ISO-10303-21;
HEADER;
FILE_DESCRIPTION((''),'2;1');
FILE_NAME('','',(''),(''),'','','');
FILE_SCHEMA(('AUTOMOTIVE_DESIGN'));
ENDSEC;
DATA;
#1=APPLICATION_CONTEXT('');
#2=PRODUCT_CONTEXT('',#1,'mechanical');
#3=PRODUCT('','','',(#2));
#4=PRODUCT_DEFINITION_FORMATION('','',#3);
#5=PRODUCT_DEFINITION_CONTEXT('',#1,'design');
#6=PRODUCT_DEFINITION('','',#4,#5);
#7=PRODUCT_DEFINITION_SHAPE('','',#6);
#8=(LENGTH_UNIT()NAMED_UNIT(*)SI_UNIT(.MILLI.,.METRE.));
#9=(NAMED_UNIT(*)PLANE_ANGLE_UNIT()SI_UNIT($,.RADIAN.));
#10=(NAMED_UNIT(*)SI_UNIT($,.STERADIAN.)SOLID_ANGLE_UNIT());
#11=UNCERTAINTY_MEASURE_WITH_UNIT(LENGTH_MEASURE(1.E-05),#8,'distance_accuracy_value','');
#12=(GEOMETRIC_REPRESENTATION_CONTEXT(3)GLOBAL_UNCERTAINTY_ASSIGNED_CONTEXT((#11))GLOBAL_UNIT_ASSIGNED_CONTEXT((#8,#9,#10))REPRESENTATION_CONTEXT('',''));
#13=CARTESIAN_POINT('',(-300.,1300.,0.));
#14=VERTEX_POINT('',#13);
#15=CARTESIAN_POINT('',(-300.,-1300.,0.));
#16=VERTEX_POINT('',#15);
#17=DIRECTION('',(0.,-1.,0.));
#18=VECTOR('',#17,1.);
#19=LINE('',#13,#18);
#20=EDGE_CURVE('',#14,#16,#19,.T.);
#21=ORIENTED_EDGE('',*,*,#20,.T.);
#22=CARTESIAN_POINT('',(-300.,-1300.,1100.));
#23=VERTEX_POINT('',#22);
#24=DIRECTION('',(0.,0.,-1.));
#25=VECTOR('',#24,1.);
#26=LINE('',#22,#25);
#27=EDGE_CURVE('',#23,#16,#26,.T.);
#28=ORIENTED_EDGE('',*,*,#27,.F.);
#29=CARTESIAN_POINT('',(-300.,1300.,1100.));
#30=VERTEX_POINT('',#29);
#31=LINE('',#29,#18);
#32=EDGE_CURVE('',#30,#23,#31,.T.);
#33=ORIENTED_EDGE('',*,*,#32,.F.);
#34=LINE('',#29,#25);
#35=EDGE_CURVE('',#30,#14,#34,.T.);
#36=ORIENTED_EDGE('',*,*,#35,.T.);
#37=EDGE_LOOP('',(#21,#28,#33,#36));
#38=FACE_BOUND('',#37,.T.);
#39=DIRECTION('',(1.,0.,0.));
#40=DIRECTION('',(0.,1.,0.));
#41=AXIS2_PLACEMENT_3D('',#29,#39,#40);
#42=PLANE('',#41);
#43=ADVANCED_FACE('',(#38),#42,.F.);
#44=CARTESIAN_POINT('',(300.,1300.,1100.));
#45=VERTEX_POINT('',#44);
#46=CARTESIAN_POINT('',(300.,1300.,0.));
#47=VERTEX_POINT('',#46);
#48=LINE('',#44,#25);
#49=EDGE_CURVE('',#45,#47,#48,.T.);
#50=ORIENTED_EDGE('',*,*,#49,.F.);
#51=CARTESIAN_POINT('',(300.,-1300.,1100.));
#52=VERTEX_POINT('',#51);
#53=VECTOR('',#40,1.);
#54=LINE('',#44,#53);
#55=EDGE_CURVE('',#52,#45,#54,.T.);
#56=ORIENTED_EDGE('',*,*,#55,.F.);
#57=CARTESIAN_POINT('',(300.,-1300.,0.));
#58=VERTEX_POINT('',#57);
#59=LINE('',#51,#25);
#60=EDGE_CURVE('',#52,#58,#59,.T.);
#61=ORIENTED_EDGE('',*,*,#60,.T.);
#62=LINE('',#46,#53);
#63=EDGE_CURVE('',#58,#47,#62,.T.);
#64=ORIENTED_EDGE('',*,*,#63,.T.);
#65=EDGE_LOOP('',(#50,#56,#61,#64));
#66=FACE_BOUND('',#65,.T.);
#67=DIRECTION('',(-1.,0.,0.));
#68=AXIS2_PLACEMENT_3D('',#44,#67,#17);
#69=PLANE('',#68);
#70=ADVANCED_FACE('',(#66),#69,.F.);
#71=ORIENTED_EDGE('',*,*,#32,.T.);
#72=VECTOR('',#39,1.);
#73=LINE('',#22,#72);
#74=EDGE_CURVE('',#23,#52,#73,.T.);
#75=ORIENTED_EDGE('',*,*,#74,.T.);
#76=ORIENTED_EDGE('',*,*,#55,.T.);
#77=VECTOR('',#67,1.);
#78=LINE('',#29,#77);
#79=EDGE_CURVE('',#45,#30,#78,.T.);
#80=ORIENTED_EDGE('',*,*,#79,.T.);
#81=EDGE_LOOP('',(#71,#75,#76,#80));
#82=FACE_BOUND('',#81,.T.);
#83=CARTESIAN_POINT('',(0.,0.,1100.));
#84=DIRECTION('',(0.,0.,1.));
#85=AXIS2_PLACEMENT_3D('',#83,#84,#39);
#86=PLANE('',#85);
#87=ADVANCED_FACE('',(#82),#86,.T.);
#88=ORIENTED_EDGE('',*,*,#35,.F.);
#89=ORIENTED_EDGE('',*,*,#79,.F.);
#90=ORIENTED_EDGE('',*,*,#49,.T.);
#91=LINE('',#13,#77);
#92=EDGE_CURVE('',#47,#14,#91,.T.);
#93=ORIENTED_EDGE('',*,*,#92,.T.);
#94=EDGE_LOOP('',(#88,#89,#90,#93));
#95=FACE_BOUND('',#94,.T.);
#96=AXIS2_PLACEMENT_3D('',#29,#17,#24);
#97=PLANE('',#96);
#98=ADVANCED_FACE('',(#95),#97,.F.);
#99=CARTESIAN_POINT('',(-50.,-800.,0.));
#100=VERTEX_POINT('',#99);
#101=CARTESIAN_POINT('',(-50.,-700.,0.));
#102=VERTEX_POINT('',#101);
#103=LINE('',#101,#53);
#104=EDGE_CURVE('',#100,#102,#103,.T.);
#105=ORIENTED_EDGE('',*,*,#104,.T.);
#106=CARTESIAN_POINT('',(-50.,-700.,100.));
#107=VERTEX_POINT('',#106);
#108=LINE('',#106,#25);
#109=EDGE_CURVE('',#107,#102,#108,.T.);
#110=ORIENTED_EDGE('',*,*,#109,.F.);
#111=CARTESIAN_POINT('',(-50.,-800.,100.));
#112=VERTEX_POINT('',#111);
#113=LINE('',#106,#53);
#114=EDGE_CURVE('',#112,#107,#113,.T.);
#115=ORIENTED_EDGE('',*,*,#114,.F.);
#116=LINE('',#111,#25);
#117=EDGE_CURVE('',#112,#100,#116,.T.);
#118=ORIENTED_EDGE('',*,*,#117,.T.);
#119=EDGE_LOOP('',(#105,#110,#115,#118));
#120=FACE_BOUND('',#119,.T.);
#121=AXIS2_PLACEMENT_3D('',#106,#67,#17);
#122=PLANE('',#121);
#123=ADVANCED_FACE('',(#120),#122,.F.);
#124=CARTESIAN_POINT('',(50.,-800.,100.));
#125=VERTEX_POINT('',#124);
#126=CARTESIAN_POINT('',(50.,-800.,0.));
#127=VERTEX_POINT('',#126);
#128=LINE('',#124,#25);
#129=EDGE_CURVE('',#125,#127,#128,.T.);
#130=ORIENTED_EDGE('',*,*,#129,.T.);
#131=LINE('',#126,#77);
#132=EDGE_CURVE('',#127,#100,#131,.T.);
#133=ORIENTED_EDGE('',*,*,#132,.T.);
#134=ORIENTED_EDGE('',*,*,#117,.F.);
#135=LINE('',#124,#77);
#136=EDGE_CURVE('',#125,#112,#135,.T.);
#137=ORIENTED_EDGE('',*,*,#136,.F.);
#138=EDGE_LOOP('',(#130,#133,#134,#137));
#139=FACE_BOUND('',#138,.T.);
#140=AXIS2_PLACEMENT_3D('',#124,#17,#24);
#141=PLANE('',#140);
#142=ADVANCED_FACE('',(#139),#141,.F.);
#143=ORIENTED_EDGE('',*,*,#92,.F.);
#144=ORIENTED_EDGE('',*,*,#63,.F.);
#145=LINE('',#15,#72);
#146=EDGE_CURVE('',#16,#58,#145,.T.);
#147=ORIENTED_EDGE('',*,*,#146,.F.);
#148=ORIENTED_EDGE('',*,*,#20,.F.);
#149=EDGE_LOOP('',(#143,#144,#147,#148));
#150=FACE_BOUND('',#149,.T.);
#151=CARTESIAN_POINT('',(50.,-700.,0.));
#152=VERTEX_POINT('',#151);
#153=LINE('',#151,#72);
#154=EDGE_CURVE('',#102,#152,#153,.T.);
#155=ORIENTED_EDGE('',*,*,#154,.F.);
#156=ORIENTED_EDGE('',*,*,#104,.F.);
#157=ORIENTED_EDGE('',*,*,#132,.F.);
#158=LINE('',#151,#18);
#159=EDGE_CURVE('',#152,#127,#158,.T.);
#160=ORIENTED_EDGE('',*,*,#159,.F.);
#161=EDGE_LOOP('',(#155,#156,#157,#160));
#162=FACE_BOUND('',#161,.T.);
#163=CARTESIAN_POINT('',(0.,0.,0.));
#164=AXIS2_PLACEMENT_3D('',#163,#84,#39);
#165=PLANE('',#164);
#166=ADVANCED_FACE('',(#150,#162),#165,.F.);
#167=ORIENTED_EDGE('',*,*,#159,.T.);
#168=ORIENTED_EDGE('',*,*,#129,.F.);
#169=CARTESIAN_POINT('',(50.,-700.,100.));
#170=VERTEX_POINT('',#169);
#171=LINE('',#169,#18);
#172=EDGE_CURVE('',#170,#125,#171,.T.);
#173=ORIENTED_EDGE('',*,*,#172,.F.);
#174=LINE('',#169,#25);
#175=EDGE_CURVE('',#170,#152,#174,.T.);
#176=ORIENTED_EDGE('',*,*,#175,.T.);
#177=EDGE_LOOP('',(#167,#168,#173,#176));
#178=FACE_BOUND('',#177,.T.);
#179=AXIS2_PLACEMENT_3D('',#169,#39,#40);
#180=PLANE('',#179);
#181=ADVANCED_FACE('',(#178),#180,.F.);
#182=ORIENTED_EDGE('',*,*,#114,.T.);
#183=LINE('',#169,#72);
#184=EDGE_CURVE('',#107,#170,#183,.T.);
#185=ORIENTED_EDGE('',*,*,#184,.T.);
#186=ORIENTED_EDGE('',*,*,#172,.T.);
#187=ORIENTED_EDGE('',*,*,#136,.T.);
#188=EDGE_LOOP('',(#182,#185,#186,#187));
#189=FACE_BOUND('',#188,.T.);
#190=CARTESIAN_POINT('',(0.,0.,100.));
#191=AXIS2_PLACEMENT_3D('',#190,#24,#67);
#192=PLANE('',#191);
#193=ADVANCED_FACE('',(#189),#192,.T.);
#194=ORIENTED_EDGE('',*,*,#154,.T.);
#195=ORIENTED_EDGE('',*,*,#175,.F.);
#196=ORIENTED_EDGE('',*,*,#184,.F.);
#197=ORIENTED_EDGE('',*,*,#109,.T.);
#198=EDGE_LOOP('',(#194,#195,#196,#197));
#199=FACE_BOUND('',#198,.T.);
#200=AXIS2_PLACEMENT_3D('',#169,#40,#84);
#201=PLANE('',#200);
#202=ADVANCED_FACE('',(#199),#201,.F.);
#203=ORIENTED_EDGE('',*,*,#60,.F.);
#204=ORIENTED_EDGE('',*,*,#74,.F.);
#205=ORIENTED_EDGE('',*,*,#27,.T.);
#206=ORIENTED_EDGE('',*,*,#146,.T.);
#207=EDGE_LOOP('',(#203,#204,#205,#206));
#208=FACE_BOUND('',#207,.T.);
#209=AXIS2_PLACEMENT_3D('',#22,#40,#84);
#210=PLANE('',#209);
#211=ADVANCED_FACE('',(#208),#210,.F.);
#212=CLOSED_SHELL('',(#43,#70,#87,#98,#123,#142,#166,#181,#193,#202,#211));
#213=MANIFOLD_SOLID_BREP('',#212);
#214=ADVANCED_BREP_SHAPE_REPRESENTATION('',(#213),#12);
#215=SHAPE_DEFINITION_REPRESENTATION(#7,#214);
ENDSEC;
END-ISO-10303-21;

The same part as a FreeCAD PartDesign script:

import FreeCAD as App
import Part
import Sketcher
from FreeCAD import Vector


def add_polygon(sketch, points):
    """Adds a closed chain of lines whose ends are joined by coincident constraints."""
    first, n = sketch.GeometryCount, len(points)
    for a, b in zip(points, points[1:] + points[:1]):
        sketch.addGeometry(Part.LineSegment(App.Vector(*a, 0), App.Vector(*b, 0)), False)
    for i in range(n):
        sketch.addConstraint(Sketcher.Constraint("Coincident", first + i, 2, first + (i + 1) % n, 1))

doc = App.newDocument("Part")
body = doc.addObject("PartDesign::Body", "Body")

# Sketch on XY plane
sketch1 = body.newObject("Sketcher::SketchObject", "Sketch")
sketch1.AttachmentSupport = (doc.getObject("XY_Plane"), [""])
sketch1.MapMode = "FlatFace"
add_polygon(sketch1, [(-300, 1300), (-300, -1300), (300, -1300), (300, 1300)])  # lines 0-3
sketch1.addConstraint(Sketcher.Constraint("Vertical", 0))
sketch1.addConstraint(Sketcher.Constraint("Horizontal", 1))
sketch1.addConstraint(Sketcher.Constraint("Vertical", 2))
sketch1.addConstraint(Sketcher.Constraint("Horizontal", 3))
sketch1.addConstraint(Sketcher.Constraint("Symmetric", 0, 2, 2, 2, -1, 1))
sketch1.addConstraint(Sketcher.Constraint("DistanceX", 1, 1, 1, 2, 600.0))
sketch1.addConstraint(Sketcher.Constraint("DistanceY", 0, 2, 0, 1, 2600.0))
pad1 = body.newObject("PartDesign::Pad", "Pad")
pad1.Profile = sketch1
pad1.Length = 1100

# Sketch on XY plane
sketch2 = body.newObject("Sketcher::SketchObject", "Sketch001")
sketch2.AttachmentSupport = (doc.getObject("XY_Plane"), [""])
sketch2.MapMode = "FlatFace"
add_polygon(sketch2, [(50, -700), (50, -800), (-50, -800), (-50, -700)])  # lines 0-3
sketch2.addConstraint(Sketcher.Constraint("Vertical", 0))
sketch2.addConstraint(Sketcher.Constraint("Horizontal", 1))
sketch2.addConstraint(Sketcher.Constraint("Vertical", 2))
sketch2.addConstraint(Sketcher.Constraint("Horizontal", 3))
sketch2.addConstraint(Sketcher.Constraint("Equal", 3, 0))
sketch2.addConstraint(Sketcher.Constraint("DistanceX", 1, 2, 1, 1, 100.0))
sketch2.addConstraint(Sketcher.Constraint("DistanceX", -1, 1, 0, 2, 50.0))
sketch2.addConstraint(Sketcher.Constraint("DistanceY", 0, 2, -1, 1, 800.0))
pocket1 = body.newObject("PartDesign::Pocket", "Pocket")
pocket1.Profile = sketch2
pocket1.Length = 100
pocket1.Reversed = True

doc.recompute()
